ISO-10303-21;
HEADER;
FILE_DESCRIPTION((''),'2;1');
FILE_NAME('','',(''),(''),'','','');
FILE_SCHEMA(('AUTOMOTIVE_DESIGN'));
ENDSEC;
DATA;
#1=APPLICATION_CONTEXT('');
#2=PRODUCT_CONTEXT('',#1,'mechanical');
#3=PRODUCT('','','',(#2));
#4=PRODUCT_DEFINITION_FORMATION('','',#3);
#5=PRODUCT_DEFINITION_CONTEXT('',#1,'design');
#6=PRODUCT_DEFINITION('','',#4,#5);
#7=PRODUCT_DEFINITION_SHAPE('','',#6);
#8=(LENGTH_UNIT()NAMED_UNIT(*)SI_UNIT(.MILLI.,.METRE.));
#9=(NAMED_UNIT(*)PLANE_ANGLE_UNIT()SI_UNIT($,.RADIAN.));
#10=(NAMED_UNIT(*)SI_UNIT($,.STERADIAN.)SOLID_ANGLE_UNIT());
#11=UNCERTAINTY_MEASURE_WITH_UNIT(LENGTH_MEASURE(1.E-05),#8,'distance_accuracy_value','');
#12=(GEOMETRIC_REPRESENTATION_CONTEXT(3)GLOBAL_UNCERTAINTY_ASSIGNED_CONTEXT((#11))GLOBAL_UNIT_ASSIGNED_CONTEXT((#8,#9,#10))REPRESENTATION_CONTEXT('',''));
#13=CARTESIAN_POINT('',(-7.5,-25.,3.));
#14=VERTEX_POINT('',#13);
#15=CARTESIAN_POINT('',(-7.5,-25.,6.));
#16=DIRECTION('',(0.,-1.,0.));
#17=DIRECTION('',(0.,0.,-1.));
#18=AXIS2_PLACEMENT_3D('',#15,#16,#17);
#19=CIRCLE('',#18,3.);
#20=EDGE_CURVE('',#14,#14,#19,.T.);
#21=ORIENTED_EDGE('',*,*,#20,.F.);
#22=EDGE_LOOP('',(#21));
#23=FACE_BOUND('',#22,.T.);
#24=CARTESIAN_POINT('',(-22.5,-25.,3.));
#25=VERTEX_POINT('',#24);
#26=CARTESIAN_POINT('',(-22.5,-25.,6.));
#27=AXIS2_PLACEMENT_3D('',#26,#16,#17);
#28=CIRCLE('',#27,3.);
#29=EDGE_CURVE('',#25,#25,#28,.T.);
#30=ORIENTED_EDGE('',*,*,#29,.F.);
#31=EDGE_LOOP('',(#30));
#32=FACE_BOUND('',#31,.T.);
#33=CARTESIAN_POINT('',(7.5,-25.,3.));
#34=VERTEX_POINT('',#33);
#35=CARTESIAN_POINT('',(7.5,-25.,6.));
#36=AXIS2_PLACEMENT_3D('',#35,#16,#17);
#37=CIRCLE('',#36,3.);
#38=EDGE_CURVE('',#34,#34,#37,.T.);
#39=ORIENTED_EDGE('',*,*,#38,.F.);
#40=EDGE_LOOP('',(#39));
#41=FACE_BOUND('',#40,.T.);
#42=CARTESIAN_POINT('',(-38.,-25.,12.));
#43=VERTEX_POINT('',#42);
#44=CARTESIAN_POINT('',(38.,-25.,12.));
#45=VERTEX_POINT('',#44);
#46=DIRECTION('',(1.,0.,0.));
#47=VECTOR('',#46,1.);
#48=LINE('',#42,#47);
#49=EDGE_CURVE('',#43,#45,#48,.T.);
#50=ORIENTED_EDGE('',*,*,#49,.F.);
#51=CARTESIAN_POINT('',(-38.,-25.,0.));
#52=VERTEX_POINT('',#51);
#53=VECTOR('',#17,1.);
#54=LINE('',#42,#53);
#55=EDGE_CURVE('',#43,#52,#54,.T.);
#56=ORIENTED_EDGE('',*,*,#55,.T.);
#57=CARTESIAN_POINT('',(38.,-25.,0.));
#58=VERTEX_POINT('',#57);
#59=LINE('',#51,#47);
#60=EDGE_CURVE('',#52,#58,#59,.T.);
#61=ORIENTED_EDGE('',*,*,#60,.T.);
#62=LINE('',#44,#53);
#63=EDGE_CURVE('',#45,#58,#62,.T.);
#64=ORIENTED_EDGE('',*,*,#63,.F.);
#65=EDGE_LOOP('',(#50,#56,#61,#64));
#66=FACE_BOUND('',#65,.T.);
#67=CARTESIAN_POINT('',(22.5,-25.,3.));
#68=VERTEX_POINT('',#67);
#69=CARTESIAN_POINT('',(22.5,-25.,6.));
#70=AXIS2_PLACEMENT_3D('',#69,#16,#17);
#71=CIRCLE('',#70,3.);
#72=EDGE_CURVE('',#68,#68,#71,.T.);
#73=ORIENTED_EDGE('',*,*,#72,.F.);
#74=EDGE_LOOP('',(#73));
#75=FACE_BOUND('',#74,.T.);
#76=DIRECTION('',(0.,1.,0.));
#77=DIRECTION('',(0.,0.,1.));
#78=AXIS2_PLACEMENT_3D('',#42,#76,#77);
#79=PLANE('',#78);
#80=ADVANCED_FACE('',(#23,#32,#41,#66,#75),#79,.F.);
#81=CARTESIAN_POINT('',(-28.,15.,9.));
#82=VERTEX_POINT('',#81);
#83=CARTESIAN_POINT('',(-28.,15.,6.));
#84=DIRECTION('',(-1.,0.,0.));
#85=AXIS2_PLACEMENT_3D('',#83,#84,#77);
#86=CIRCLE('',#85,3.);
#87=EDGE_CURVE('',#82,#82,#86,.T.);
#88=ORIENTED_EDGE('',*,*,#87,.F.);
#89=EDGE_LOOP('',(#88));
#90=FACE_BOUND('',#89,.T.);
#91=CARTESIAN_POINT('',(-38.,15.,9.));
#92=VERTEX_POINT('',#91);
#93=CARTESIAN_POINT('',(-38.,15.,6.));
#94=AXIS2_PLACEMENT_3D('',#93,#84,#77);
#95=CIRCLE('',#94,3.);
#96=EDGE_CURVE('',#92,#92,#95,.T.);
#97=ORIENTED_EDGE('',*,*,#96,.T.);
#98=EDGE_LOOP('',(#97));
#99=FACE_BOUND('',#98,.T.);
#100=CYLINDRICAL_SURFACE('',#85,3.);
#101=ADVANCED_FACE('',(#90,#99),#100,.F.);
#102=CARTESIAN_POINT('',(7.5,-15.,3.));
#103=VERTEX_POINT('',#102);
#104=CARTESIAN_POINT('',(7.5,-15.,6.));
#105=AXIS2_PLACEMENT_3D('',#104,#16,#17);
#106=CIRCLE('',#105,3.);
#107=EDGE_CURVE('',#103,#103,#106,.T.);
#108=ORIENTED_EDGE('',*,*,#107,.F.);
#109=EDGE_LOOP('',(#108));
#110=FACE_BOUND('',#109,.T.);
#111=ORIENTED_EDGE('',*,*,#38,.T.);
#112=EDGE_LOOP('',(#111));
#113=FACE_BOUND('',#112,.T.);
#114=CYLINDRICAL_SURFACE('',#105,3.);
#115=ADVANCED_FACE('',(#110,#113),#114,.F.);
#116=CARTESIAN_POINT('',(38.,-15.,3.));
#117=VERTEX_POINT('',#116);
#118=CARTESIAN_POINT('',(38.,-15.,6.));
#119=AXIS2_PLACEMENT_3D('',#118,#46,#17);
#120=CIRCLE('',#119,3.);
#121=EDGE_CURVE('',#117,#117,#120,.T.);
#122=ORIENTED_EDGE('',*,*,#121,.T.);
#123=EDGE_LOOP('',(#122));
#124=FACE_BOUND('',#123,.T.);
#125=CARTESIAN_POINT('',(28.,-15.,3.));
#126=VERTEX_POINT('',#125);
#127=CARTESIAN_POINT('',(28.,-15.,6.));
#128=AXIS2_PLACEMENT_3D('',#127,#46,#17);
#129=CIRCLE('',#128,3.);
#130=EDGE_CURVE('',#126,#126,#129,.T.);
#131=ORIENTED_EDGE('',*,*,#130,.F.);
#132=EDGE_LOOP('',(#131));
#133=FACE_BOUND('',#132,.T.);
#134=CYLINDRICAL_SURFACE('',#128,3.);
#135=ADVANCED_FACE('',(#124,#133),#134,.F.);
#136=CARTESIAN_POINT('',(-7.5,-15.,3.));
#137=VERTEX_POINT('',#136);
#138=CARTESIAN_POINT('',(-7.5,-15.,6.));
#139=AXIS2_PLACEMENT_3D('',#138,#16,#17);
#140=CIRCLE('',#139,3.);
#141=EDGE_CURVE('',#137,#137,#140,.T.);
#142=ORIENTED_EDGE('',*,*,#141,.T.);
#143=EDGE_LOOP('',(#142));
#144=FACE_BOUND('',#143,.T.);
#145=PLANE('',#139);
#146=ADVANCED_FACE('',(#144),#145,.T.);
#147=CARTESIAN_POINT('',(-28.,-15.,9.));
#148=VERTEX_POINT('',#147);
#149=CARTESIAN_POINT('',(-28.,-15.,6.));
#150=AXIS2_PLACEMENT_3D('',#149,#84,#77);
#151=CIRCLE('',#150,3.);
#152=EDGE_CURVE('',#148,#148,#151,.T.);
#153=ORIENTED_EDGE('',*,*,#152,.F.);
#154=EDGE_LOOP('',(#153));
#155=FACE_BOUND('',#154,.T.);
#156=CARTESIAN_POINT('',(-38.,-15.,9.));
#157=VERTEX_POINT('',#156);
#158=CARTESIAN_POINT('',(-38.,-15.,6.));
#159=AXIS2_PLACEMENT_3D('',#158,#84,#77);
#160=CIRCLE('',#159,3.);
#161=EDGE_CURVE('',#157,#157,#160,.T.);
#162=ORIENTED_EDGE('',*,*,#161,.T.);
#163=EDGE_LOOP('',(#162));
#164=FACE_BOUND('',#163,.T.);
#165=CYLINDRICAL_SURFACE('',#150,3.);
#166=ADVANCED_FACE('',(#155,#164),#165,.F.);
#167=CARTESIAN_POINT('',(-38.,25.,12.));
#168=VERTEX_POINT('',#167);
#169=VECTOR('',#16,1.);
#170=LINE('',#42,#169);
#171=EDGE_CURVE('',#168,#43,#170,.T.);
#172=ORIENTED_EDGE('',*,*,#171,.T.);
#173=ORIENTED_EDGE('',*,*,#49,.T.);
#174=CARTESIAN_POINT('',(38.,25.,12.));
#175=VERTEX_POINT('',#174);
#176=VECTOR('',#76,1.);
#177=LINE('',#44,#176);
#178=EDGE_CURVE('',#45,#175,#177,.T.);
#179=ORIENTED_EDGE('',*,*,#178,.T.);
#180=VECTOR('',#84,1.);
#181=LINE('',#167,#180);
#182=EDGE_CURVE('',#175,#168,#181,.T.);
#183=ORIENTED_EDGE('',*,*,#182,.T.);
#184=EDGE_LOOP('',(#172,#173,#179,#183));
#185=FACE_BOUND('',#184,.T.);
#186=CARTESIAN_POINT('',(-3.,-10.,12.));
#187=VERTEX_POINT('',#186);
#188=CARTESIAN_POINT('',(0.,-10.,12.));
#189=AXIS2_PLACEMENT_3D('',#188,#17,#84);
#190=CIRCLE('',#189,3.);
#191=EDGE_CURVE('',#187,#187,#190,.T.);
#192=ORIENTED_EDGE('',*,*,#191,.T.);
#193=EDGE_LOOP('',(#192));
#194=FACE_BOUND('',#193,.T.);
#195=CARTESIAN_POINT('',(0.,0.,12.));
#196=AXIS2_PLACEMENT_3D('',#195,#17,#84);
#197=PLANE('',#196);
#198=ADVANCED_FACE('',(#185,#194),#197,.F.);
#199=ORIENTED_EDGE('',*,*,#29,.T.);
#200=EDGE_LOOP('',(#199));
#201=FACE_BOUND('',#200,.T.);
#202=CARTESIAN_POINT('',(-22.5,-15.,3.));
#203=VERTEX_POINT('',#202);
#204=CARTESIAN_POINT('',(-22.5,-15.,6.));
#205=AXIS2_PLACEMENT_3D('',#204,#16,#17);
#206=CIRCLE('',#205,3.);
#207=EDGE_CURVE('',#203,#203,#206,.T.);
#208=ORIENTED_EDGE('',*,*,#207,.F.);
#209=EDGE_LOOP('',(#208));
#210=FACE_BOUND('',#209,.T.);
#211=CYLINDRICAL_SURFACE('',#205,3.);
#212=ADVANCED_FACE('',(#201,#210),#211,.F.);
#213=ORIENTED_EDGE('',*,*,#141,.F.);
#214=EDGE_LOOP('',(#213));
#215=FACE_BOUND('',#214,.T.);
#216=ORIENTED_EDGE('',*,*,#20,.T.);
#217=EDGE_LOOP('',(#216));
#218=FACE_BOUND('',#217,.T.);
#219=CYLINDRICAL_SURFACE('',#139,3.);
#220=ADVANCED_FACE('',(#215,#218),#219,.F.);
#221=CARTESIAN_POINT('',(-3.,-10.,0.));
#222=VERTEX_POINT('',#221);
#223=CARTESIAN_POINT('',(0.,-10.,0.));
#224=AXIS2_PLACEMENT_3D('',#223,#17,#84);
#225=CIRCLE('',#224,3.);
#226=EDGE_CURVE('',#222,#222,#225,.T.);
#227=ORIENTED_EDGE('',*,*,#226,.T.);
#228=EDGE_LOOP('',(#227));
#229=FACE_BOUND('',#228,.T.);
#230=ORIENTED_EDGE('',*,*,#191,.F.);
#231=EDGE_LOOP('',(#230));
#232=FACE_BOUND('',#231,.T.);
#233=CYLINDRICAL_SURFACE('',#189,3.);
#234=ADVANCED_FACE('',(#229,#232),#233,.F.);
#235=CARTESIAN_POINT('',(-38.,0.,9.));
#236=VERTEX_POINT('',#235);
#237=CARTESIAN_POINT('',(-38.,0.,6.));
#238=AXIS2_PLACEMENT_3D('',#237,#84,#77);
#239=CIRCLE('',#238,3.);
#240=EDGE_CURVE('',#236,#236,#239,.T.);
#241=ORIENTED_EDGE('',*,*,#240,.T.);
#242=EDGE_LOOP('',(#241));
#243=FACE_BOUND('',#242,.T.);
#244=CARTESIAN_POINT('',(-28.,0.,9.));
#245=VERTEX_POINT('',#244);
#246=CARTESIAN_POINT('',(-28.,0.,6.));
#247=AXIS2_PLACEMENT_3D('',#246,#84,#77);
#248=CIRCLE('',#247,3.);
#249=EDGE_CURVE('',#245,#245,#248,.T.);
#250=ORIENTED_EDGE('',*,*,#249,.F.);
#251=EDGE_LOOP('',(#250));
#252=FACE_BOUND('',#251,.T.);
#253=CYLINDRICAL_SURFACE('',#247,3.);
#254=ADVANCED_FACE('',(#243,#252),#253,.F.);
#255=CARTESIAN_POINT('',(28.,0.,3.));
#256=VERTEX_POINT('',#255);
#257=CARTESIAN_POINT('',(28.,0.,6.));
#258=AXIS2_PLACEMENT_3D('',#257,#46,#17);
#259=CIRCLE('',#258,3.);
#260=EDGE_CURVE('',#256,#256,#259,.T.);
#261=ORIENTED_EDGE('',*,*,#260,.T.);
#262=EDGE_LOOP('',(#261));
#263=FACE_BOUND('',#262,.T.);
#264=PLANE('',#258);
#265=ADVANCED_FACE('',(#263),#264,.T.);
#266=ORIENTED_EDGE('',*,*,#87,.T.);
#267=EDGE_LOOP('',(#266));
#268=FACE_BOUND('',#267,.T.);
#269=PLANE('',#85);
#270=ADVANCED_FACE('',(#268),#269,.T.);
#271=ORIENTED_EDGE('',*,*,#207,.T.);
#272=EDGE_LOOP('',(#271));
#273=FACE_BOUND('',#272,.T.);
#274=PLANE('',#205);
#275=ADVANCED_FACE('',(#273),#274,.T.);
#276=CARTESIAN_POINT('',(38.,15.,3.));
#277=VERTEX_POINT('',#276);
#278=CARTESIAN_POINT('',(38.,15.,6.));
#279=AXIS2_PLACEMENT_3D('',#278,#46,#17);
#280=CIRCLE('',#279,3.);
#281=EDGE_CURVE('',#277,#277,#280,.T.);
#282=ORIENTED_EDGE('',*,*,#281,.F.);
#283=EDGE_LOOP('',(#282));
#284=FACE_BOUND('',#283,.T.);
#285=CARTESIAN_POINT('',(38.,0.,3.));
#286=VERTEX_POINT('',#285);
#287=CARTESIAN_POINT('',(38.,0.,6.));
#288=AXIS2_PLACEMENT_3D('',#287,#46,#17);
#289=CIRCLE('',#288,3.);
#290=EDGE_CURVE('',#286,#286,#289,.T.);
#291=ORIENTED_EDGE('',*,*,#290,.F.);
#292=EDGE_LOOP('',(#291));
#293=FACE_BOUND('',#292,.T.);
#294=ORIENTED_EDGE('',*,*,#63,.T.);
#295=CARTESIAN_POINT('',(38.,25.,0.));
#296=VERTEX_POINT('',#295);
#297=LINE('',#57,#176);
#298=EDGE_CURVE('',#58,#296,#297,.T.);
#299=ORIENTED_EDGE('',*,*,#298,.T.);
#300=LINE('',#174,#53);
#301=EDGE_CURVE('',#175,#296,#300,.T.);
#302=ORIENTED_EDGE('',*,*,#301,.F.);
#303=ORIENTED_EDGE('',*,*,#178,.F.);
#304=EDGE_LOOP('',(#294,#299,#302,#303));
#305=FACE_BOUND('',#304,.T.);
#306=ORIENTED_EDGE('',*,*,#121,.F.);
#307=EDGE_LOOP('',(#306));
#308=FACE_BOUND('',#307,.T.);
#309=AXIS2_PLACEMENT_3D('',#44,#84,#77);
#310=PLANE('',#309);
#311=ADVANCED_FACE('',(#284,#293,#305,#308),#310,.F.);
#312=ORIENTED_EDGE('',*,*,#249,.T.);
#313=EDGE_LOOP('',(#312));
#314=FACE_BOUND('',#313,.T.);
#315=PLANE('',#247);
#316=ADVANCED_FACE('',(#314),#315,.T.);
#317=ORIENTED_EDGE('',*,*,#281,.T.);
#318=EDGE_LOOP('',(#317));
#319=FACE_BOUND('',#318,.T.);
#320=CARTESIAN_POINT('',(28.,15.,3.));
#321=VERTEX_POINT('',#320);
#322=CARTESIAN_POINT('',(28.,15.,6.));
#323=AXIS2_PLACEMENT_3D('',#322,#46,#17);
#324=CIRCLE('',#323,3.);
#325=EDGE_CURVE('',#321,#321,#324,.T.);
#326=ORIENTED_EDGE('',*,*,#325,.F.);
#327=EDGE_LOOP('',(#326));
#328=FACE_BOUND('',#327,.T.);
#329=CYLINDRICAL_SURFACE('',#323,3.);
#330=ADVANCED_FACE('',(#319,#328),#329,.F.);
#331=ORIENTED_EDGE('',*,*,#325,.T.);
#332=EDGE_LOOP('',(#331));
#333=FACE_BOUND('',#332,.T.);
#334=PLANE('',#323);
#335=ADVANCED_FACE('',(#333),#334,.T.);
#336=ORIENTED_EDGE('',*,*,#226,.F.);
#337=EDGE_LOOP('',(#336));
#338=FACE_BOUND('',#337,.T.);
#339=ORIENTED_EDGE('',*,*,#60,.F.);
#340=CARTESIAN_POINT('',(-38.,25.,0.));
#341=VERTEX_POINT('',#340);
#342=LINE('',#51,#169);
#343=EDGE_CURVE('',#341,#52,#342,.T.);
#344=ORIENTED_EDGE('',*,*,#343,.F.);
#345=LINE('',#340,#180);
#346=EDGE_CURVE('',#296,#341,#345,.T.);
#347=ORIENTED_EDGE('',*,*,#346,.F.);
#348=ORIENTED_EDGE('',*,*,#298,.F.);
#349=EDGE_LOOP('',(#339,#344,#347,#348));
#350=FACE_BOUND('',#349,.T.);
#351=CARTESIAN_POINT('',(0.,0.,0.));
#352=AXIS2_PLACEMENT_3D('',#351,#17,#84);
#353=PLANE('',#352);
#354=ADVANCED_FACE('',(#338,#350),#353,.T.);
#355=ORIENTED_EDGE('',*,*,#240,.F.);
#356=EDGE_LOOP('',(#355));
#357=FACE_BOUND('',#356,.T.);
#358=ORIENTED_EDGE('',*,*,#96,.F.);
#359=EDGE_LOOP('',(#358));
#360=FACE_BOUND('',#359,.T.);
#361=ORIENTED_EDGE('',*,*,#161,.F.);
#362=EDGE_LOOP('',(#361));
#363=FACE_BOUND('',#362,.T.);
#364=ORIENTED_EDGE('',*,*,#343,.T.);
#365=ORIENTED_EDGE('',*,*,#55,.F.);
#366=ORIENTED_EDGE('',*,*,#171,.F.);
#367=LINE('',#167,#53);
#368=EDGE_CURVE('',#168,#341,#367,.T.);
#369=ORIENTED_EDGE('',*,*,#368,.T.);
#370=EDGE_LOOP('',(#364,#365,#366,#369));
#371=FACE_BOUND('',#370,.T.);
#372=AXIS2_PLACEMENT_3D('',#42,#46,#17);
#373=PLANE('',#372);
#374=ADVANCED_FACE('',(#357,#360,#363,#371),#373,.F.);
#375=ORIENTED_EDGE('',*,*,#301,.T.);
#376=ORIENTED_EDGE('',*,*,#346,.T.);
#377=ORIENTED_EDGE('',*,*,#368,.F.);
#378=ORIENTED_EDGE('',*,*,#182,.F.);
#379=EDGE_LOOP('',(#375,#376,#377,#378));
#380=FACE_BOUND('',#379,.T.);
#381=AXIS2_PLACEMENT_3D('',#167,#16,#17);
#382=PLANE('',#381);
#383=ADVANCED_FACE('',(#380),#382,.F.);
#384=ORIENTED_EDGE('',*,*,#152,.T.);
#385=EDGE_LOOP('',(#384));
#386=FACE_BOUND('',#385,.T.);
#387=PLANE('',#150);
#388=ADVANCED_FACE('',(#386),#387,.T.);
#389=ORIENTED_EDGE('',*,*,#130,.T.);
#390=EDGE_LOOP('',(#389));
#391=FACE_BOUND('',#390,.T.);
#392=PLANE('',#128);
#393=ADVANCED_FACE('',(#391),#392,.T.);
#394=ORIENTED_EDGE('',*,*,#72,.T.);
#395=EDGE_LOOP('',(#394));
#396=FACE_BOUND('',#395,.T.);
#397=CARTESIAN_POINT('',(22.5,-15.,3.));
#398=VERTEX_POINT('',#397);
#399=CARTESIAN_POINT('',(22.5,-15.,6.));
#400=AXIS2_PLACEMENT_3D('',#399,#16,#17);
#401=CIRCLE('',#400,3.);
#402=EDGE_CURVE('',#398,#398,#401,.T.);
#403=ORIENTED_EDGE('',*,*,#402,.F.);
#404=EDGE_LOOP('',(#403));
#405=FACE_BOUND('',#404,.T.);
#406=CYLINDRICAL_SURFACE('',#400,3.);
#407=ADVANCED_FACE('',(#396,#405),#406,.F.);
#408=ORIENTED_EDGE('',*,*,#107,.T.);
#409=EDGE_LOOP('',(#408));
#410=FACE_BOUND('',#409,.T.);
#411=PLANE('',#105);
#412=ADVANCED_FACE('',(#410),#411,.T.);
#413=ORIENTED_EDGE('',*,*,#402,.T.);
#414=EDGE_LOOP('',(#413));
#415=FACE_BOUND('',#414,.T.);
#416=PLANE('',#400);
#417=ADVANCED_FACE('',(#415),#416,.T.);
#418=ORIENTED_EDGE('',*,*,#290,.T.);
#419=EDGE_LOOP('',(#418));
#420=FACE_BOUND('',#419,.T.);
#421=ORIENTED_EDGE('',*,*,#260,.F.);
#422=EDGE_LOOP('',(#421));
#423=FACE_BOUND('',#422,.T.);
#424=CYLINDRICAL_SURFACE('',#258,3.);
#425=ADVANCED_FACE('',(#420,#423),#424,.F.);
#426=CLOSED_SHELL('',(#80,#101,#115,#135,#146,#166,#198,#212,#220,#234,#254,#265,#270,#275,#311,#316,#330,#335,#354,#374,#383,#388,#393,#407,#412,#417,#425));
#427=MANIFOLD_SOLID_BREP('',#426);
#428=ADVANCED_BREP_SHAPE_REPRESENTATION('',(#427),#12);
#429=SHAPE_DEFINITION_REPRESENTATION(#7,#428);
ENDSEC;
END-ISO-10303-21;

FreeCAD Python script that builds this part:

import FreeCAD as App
import Part
import Sketcher

V = App.Vector
Q = App.Units.Quantity


def add_polygon(sketch, points):
    """Adds a closed chain of lines whose ends are joined by coincident constraints."""
    first, n = sketch.GeometryCount, len(points)
    for a, b in zip(points, points[1:] + points[:1]):
        sketch.addGeometry(Part.LineSegment(App.Vector(*a, 0), App.Vector(*b, 0)), False)
    for i in range(n):
        sketch.addConstraint(Sketcher.Constraint("Coincident", first + i, 2, first + (i + 1) % n, 1))

doc = App.newDocument("Part")
body = doc.addObject("PartDesign::Body", "Body")

# Sketch on XY plane
sketch1 = body.newObject("Sketcher::SketchObject", "Sketch")
sketch1.AttachmentSupport = (doc.getObject("XY_Plane"), [""])
sketch1.MapMode = "FlatFace"
add_polygon(sketch1, [(-38, 25), (-38, -25), (38, -25), (38, 25)])  # lines 0-3
sketch1.addConstraint(Sketcher.Constraint("Vertical", 0))
sketch1.addConstraint(Sketcher.Constraint("Horizontal", 1))
sketch1.addConstraint(Sketcher.Constraint("Vertical", 2))
sketch1.addConstraint(Sketcher.Constraint("Horizontal", 3))
sketch1.addConstraint(Sketcher.Constraint("Symmetric", 0, 2, 2, 2, -1, 1))
sketch1.addConstraint(Sketcher.Constraint("DistanceX", 1, 1, 1, 2, Q("76 mm")))
sketch1.addConstraint(Sketcher.Constraint("DistanceY", 0, 2, 0, 1, Q("50 mm")))
pad1 = body.newObject("PartDesign::Pad", "Pad")
pad1.Profile = sketch1
pad1.Length = 12

# Sketch on YZ plane
sketch2 = body.newObject("Sketcher::SketchObject", "Sketch001")
sketch2.AttachmentSupport = (doc.getObject("YZ_Plane"), [""])
sketch2.MapMode = "FlatFace"
sketch2.AttachmentOffset = App.Placement(V(0, 0, -38), App.Rotation())
sketch2.addGeometry(Part.Circle(V(-15, 6, 0), V(0, 0, 1), 3), False)
sketch2.addGeometry(Part.Circle(V(0, 6, 0), V(0, 0, 1), 3), False)
sketch2.addGeometry(Part.Circle(V(15, 6, 0), V(0, 0, 1), 3), False)
sketch2.addConstraint(Sketcher.Constraint("Equal", 0, 1))
sketch2.addConstraint(Sketcher.Constraint("Equal", 1, 2))
sketch2.addConstraint(Sketcher.Constraint("Symmetric", 0, 3, 2, 3, -2))
sketch2.addConstraint(Sketcher.Constraint("PointOnObject", 1, 3, -2))
sketch2.addConstraint(Sketcher.Constraint("Horizontal", 0, 3, 1, 3))
sketch2.addConstraint(Sketcher.Constraint("Diameter", 0, Q("6 mm")))
sketch2.addConstraint(Sketcher.Constraint("DistanceX", 0, 3, -1, 1, Q("15 mm")))
sketch2.addConstraint(Sketcher.Constraint("DistanceY", -1, 1, 0, 3, Q("6 mm")))
pocket1 = body.newObject("PartDesign::Pocket", "Pocket")
pocket1.Profile = sketch2
pocket1.Length = 10
pocket1.Reversed = True

# Sketch on YZ plane
sketch3 = body.newObject("Sketcher::SketchObject", "Sketch002")
sketch3.AttachmentSupport = (doc.getObject("YZ_Plane"), [""])
sketch3.MapMode = "FlatFace"
sketch3.AttachmentOffset = App.Placement(V(0, 0, 28), App.Rotation())
sketch3.addGeometry(Part.Circle(V(-15, 6, 0), V(0, 0, 1), 3), False)
sketch3.addGeometry(Part.Circle(V(0, 6, 0), V(0, 0, 1), 3), False)
sketch3.addGeometry(Part.Circle(V(15, 6, 0), V(0, 0, 1), 3), False)
sketch3.addConstraint(Sketcher.Constraint("Equal", 0, 1))
sketch3.addConstraint(Sketcher.Constraint("Equal", 1, 2))
sketch3.addConstraint(Sketcher.Constraint("Symmetric", 0, 3, 2, 3, -2))
sketch3.addConstraint(Sketcher.Constraint("PointOnObject", 1, 3, -2))
sketch3.addConstraint(Sketcher.Constraint("Horizontal", 0, 3, 1, 3))
sketch3.addConstraint(Sketcher.Constraint("Diameter", 0, Q("6 mm")))
sketch3.addConstraint(Sketcher.Constraint("DistanceX", 0, 3, -1, 1, Q("15 mm")))
sketch3.addConstraint(Sketcher.Constraint("DistanceY", -1, 1, 0, 3, Q("6 mm")))
pocket2 = body.newObject("PartDesign::Pocket", "Pocket001")
pocket2.Profile = sketch3
pocket2.Length = 10
pocket2.Reversed = True

# Sketch on XZ plane
sketch4 = body.newObject("Sketcher::SketchObject", "Sketch003")
sketch4.AttachmentSupport = (doc.getObject("XZ_Plane"), [""])
sketch4.MapMode = "FlatFace"
sketch4.AttachmentOffset = App.Placement(V(0, 0, 25), App.Rotation())
sketch4.addGeometry(Part.Circle(V(22.5, 6, 0), V(0, 0, 1), 3), False)
sketch4.addGeometry(Part.Circle(V(7.5, 6, 0), V(0, 0, 1), 3), False)
sketch4.addGeometry(Part.Circle(V(-7.5, 6, 0), V(0, 0, 1), 3), False)
sketch4.addGeometry(Part.Circle(V(-22.5, 6, 0), V(0, 0, 1), 3), False)
sketch4.addConstraint(Sketcher.Constraint("Equal", 0, 1))
sketch4.addConstraint(Sketcher.Constraint("Equal", 1, 2))
sketch4.addConstraint(Sketcher.Constraint("Equal", 2, 3))
sketch4.addConstraint(Sketcher.Constraint("Symmetric", 1, 3, 2, 3, -2))
sketch4.addConstraint(Sketcher.Constraint("Symmetric", 0, 3, 3, 3, -2))
sketch4.addConstraint(Sketcher.Constraint("Horizontal", 0, 3, 1, 3))
sketch4.addConstraint(Sketcher.Constraint("Diameter", 0, Q("6 mm")))
sketch4.addConstraint(Sketcher.Constraint("DistanceY", -1, 1, 0, 3, Q("6 mm")))
sketch4.addConstraint(Sketcher.Constraint("DistanceX", 1, 3, 0, 3, Q("15 mm")))
sketch4.addConstraint(Sketcher.Constraint("DistanceX", 2, 3, 1, 3, Q("15 mm")))
pocket3 = body.newObject("PartDesign::Pocket", "Pocket002")
pocket3.Profile = sketch4
pocket3.Length = 10

# Sketch on XY plane
sketch5 = body.newObject("Sketcher::SketchObject", "Sketch004")
sketch5.AttachmentSupport = (doc.getObject("XY_Plane"), [""])
sketch5.MapMode = "FlatFace"
sketch5.addGeometry(Part.Circle(V(0, -10, 0), V(0, 0, 1), 3), False)
sketch5.addConstraint(Sketcher.Constraint("PointOnObject", 0, 3, -2))
sketch5.addConstraint(Sketcher.Constraint("Diameter", 0, Q("6 mm")))
sketch5.addConstraint(Sketcher.Constraint("DistanceY", 0, 3, -1, 1, Q("10 mm")))
pocket4 = body.newObject("PartDesign::Pocket", "Pocket003")
pocket4.Profile = sketch5
pocket4.Length = 12
pocket4.Reversed = True

doc.recompute()
